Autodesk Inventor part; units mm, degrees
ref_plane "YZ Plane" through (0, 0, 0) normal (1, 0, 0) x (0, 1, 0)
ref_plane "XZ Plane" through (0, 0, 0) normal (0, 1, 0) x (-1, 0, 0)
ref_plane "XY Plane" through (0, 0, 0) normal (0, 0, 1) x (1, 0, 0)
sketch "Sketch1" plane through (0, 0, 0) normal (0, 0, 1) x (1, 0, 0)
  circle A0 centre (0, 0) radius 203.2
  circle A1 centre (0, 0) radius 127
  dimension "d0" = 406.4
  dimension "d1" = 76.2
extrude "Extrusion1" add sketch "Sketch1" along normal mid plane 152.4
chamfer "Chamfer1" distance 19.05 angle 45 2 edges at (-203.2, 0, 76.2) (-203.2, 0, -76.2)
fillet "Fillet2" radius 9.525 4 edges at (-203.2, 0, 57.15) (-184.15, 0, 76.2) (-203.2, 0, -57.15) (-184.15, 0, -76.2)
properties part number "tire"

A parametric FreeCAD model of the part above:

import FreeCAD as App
import Part
import Sketcher
Q = App.Units.Quantity


def edges_at(feature, points):
    """Names of the edges that pass closest to the given points."""
    edges = feature.Shape.Edges
    near = lambda p: min(range(len(edges)), key=lambda i: edges[i].distToShape(Part.Vertex(*p))[0])
    return sorted({f"Edge{near(p) + 1}" for p in points})

doc = App.newDocument("Part")
body = doc.addObject("PartDesign::Body", "Body")

# Sketch on XY plane
sketch1 = body.newObject("Sketcher::SketchObject", "Sketch")
sketch1.AttachmentSupport = (doc.getObject("XY_Plane"), [""])
sketch1.MapMode = "FlatFace"
sketch1.addGeometry([
    Part.Circle(App.Vector(0, 0, 0), App.Vector(0, 0, 1), 203.2),
    Part.Circle(App.Vector(0, 0, 0), App.Vector(0, 0, 1), 127),
], False)
sketch1.addConstraint([
    Sketcher.Constraint("Coincident", 0, 3, -1, 1),
    Sketcher.Constraint("Coincident", 1, 3, -1, 1),
    Sketcher.Constraint("Diameter", 0, Q("16 in")),
    Sketcher.Constraint("Diameter", 1, Q("10 in")),
])
pad1 = body.newObject("PartDesign::Pad", "Pad")
pad1.Profile = sketch1
pad1.Length = Q("6 in")
pad1.Midplane = True
doc.recompute()

chamfer = body.newObject("PartDesign::Chamfer", "Chamfer")
chamfer.Base = (pad1, edges_at(pad1, [(-203.2, 0, 76.2), (-203.2, 0, -76.2)]))
chamfer.Size = Q("0.75 in")
doc.recompute()

fillet = body.newObject("PartDesign::Fillet", "Fillet")
fillet.Base = (chamfer, edges_at(chamfer, [
    (-203.2, 0, 57.15),
    (-184.15, 0, 76.2),
    (-203.2, 0, -57.15),
    (-184.15, 0, -76.2),
]))
fillet.Radius = Q("0.375 in")

doc.recompute()
